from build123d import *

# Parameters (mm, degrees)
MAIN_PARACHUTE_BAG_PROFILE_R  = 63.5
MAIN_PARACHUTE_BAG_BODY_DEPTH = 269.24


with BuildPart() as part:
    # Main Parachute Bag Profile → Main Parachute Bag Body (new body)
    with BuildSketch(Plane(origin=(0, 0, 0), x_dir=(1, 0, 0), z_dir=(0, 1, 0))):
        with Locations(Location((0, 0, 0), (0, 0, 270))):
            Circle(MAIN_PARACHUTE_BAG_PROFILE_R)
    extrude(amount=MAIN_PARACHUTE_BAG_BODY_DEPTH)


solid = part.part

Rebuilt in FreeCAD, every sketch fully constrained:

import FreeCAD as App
import Part
import Sketcher
Q = App.Units.Quantity

doc = App.newDocument("Part")
body = doc.addObject("PartDesign::Body", "Body")

sketch1 = body.newObject("Sketcher::SketchObject", "Sketch")
sketch1.AttachmentSupport = (doc.getObject("XZ_Plane"), [""])
sketch1.MapMode = "FlatFace"
sketch1.addGeometry(Part.Circle(App.Vector(0, 0, 0), App.Vector(0, 0, 1), 64), False)
sketch1.addConstraint(Sketcher.Constraint("Coincident", 0, 3, -1, 1))
sketch1.addConstraint(Sketcher.Constraint("Diameter", 0, Q("5 in")))
pad1 = body.newObject("PartDesign::Pad", "Pad")
pad1.Profile = sketch1
pad1.Length = Q("10.6 in")
pad1.Reversed = True

doc.recompute()
